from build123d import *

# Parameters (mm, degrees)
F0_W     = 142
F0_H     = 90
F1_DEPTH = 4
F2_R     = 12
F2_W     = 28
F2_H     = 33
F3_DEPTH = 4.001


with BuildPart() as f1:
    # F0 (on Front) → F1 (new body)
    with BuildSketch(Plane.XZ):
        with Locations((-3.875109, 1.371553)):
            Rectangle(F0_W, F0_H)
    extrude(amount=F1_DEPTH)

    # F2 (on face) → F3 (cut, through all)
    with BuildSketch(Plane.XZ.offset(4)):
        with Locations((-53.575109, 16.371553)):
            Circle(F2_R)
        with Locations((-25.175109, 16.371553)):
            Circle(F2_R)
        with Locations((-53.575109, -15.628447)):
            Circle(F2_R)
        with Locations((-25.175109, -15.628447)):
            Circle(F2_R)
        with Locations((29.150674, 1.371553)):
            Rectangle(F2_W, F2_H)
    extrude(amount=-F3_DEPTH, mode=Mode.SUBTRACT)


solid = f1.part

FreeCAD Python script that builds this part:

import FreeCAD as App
import Part
import Sketcher
Q = App.Units.Quantity


def add_polygon(sketch, points):
    """Adds a closed chain of lines whose ends are joined by coincident constraints."""
    first, n = sketch.GeometryCount, len(points)
    for a, b in zip(points, points[1:] + points[:1]):
        sketch.addGeometry(Part.LineSegment(App.Vector(*a, 0), App.Vector(*b, 0)), False)
    for i in range(n):
        sketch.addConstraint(Sketcher.Constraint("Coincident", first + i, 2, first + (i + 1) % n, 1))

doc = App.newDocument("Part")
params = doc.addObject("Spreadsheet::Sheet", "Params")
for row, (alias, value) in enumerate([
    ("sketch1_width", "142 mm"),
    ("sketch1_height", "90 mm"),
    ("pad1_length", "4 mm"),
    ("sketch2_diameter", "24 mm"),
    ("sketch2_width", "28 mm"),
    ("sketch2_height", "33 mm"),
], start=1):
    params.set(f"A{row}", alias)
    params.set(f"B{row}", "=" + value)
    params.setAlias(f"B{row}", alias)

body = doc.addObject("PartDesign::Body", "Body")

# Sketch on XZ plane
sketch1 = doc.addObject("Sketcher::SketchObject", "Sketch")
body.addObject(sketch1)
sketch1.AttachmentSupport = (doc.XZ_Plane, [""])
sketch1.MapMode = "FlatFace"
add_polygon(sketch1, [(-74.875109, 46.371553), (-74.875109, -43.628447), (67.124891, -43.628447), (67.124891, 46.371553)])  # lines 0-3
sketch1.addConstraint([
    Sketcher.Constraint("Vertical", 0),
    Sketcher.Constraint("Horizontal", 1),
    Sketcher.Constraint("Vertical", 2),
    Sketcher.Constraint("Horizontal", 3),
    Sketcher.Constraint("DistanceX", 1, 1, 1, 2, Q("142 mm")),
    Sketcher.Constraint("DistanceY", 0, 2, 0, 1, Q("90 mm")),
    Sketcher.Constraint("DistanceX", 0, 2, -1, 1, Q("74.875109 mm")),
    Sketcher.Constraint("DistanceY", 0, 2, -1, 1, Q("43.628447 mm")),
])
sketch1.setExpression("Constraints[8]", "Params.sketch1_width")
sketch1.setExpression("Constraints[9]", "Params.sketch1_height")
pad1 = doc.addObject("PartDesign::Pad", "Pad")
body.addObject(pad1)
pad1.Profile = sketch1
pad1.setExpression("Length", "Params.pad1_length")

# Sketch on XZ plane
sketch2 = doc.addObject("Sketcher::SketchObject", "Sketch001")
body.addObject(sketch2)
sketch2.AttachmentSupport = (doc.XZ_Plane, [""])
sketch2.MapMode = "FlatFace"
sketch2.AttachmentOffset = App.Placement(App.Vector(0, 0, 4), App.Rotation())
sketch2.addGeometry(Part.Circle(App.Vector(-53.575109, 16.371553, 0), App.Vector(0, 0, 1), 12), False)  # 0
sketch2.addGeometry(Part.Circle(App.Vector(-25.175109, 16.371553, 0), App.Vector(0, 0, 1), 12), False)  # 1
sketch2.addGeometry(Part.Circle(App.Vector(-53.575109, -15.628447, 0), App.Vector(0, 0, 1), 12), False)  # 2
sketch2.addGeometry(Part.Circle(App.Vector(-25.175109, -15.628447, 0), App.Vector(0, 0, 1), 12), False)  # 3
add_polygon(sketch2, [(15.150674, 17.871553), (15.150674, -15.128447), (43.150674, -15.128447), (43.150674, 17.871553)])  # lines 4-7
sketch2.addConstraint([
    Sketcher.Constraint("Vertical", 4),
    Sketcher.Constraint("Horizontal", 5),
    Sketcher.Constraint("Vertical", 6),
    Sketcher.Constraint("Horizontal", 7),
    Sketcher.Constraint("Equal", 0, 1),
    Sketcher.Constraint("Equal", 1, 2),
    Sketcher.Constraint("Equal", 2, 3),
    Sketcher.Constraint("Horizontal", 0, 3, 1, 3),
    Sketcher.Constraint("Horizontal", 2, 3, 3, 3),
    Sketcher.Constraint("Vertical", 0, 3, 2, 3),
    Sketcher.Constraint("Vertical", 1, 3, 3, 3),
    Sketcher.Constraint("Diameter", 0, Q("24 mm")),
    Sketcher.Constraint("DistanceX", 5, 1, 5, 2, Q("28 mm")),
    Sketcher.Constraint("DistanceY", 4, 2, 4, 1, Q("33 mm")),
    Sketcher.Constraint("DistanceY", 2, 3, 0, 3, Q("32 mm")),
    Sketcher.Constraint("DistanceX", 0, 3, 1, 3, Q("28.4 mm")),
    Sketcher.Constraint("DistanceY", 3, 3, 4, 2, Q("0.5 mm")),
    Sketcher.Constraint("DistanceX", 0, 3, -1, 1, Q("53.575109 mm")),
    Sketcher.Constraint("DistanceY", -1, 1, 0, 3, Q("16.371553 mm")),
    Sketcher.Constraint("DistanceX", -1, 1, 4, 2, Q("15.150674 mm")),
])
sketch2.setExpression("Constraints[15]", "Params.sketch2_diameter")
sketch2.setExpression("Constraints[16]", "Params.sketch2_width")
sketch2.setExpression("Constraints[17]", "Params.sketch2_height")
pocket1 = doc.addObject("PartDesign::Pocket", "Pocket")
body.addObject(pocket1)
pocket1.Profile = sketch2
pocket1.Type = "ThroughAll"

doc.recompute()
